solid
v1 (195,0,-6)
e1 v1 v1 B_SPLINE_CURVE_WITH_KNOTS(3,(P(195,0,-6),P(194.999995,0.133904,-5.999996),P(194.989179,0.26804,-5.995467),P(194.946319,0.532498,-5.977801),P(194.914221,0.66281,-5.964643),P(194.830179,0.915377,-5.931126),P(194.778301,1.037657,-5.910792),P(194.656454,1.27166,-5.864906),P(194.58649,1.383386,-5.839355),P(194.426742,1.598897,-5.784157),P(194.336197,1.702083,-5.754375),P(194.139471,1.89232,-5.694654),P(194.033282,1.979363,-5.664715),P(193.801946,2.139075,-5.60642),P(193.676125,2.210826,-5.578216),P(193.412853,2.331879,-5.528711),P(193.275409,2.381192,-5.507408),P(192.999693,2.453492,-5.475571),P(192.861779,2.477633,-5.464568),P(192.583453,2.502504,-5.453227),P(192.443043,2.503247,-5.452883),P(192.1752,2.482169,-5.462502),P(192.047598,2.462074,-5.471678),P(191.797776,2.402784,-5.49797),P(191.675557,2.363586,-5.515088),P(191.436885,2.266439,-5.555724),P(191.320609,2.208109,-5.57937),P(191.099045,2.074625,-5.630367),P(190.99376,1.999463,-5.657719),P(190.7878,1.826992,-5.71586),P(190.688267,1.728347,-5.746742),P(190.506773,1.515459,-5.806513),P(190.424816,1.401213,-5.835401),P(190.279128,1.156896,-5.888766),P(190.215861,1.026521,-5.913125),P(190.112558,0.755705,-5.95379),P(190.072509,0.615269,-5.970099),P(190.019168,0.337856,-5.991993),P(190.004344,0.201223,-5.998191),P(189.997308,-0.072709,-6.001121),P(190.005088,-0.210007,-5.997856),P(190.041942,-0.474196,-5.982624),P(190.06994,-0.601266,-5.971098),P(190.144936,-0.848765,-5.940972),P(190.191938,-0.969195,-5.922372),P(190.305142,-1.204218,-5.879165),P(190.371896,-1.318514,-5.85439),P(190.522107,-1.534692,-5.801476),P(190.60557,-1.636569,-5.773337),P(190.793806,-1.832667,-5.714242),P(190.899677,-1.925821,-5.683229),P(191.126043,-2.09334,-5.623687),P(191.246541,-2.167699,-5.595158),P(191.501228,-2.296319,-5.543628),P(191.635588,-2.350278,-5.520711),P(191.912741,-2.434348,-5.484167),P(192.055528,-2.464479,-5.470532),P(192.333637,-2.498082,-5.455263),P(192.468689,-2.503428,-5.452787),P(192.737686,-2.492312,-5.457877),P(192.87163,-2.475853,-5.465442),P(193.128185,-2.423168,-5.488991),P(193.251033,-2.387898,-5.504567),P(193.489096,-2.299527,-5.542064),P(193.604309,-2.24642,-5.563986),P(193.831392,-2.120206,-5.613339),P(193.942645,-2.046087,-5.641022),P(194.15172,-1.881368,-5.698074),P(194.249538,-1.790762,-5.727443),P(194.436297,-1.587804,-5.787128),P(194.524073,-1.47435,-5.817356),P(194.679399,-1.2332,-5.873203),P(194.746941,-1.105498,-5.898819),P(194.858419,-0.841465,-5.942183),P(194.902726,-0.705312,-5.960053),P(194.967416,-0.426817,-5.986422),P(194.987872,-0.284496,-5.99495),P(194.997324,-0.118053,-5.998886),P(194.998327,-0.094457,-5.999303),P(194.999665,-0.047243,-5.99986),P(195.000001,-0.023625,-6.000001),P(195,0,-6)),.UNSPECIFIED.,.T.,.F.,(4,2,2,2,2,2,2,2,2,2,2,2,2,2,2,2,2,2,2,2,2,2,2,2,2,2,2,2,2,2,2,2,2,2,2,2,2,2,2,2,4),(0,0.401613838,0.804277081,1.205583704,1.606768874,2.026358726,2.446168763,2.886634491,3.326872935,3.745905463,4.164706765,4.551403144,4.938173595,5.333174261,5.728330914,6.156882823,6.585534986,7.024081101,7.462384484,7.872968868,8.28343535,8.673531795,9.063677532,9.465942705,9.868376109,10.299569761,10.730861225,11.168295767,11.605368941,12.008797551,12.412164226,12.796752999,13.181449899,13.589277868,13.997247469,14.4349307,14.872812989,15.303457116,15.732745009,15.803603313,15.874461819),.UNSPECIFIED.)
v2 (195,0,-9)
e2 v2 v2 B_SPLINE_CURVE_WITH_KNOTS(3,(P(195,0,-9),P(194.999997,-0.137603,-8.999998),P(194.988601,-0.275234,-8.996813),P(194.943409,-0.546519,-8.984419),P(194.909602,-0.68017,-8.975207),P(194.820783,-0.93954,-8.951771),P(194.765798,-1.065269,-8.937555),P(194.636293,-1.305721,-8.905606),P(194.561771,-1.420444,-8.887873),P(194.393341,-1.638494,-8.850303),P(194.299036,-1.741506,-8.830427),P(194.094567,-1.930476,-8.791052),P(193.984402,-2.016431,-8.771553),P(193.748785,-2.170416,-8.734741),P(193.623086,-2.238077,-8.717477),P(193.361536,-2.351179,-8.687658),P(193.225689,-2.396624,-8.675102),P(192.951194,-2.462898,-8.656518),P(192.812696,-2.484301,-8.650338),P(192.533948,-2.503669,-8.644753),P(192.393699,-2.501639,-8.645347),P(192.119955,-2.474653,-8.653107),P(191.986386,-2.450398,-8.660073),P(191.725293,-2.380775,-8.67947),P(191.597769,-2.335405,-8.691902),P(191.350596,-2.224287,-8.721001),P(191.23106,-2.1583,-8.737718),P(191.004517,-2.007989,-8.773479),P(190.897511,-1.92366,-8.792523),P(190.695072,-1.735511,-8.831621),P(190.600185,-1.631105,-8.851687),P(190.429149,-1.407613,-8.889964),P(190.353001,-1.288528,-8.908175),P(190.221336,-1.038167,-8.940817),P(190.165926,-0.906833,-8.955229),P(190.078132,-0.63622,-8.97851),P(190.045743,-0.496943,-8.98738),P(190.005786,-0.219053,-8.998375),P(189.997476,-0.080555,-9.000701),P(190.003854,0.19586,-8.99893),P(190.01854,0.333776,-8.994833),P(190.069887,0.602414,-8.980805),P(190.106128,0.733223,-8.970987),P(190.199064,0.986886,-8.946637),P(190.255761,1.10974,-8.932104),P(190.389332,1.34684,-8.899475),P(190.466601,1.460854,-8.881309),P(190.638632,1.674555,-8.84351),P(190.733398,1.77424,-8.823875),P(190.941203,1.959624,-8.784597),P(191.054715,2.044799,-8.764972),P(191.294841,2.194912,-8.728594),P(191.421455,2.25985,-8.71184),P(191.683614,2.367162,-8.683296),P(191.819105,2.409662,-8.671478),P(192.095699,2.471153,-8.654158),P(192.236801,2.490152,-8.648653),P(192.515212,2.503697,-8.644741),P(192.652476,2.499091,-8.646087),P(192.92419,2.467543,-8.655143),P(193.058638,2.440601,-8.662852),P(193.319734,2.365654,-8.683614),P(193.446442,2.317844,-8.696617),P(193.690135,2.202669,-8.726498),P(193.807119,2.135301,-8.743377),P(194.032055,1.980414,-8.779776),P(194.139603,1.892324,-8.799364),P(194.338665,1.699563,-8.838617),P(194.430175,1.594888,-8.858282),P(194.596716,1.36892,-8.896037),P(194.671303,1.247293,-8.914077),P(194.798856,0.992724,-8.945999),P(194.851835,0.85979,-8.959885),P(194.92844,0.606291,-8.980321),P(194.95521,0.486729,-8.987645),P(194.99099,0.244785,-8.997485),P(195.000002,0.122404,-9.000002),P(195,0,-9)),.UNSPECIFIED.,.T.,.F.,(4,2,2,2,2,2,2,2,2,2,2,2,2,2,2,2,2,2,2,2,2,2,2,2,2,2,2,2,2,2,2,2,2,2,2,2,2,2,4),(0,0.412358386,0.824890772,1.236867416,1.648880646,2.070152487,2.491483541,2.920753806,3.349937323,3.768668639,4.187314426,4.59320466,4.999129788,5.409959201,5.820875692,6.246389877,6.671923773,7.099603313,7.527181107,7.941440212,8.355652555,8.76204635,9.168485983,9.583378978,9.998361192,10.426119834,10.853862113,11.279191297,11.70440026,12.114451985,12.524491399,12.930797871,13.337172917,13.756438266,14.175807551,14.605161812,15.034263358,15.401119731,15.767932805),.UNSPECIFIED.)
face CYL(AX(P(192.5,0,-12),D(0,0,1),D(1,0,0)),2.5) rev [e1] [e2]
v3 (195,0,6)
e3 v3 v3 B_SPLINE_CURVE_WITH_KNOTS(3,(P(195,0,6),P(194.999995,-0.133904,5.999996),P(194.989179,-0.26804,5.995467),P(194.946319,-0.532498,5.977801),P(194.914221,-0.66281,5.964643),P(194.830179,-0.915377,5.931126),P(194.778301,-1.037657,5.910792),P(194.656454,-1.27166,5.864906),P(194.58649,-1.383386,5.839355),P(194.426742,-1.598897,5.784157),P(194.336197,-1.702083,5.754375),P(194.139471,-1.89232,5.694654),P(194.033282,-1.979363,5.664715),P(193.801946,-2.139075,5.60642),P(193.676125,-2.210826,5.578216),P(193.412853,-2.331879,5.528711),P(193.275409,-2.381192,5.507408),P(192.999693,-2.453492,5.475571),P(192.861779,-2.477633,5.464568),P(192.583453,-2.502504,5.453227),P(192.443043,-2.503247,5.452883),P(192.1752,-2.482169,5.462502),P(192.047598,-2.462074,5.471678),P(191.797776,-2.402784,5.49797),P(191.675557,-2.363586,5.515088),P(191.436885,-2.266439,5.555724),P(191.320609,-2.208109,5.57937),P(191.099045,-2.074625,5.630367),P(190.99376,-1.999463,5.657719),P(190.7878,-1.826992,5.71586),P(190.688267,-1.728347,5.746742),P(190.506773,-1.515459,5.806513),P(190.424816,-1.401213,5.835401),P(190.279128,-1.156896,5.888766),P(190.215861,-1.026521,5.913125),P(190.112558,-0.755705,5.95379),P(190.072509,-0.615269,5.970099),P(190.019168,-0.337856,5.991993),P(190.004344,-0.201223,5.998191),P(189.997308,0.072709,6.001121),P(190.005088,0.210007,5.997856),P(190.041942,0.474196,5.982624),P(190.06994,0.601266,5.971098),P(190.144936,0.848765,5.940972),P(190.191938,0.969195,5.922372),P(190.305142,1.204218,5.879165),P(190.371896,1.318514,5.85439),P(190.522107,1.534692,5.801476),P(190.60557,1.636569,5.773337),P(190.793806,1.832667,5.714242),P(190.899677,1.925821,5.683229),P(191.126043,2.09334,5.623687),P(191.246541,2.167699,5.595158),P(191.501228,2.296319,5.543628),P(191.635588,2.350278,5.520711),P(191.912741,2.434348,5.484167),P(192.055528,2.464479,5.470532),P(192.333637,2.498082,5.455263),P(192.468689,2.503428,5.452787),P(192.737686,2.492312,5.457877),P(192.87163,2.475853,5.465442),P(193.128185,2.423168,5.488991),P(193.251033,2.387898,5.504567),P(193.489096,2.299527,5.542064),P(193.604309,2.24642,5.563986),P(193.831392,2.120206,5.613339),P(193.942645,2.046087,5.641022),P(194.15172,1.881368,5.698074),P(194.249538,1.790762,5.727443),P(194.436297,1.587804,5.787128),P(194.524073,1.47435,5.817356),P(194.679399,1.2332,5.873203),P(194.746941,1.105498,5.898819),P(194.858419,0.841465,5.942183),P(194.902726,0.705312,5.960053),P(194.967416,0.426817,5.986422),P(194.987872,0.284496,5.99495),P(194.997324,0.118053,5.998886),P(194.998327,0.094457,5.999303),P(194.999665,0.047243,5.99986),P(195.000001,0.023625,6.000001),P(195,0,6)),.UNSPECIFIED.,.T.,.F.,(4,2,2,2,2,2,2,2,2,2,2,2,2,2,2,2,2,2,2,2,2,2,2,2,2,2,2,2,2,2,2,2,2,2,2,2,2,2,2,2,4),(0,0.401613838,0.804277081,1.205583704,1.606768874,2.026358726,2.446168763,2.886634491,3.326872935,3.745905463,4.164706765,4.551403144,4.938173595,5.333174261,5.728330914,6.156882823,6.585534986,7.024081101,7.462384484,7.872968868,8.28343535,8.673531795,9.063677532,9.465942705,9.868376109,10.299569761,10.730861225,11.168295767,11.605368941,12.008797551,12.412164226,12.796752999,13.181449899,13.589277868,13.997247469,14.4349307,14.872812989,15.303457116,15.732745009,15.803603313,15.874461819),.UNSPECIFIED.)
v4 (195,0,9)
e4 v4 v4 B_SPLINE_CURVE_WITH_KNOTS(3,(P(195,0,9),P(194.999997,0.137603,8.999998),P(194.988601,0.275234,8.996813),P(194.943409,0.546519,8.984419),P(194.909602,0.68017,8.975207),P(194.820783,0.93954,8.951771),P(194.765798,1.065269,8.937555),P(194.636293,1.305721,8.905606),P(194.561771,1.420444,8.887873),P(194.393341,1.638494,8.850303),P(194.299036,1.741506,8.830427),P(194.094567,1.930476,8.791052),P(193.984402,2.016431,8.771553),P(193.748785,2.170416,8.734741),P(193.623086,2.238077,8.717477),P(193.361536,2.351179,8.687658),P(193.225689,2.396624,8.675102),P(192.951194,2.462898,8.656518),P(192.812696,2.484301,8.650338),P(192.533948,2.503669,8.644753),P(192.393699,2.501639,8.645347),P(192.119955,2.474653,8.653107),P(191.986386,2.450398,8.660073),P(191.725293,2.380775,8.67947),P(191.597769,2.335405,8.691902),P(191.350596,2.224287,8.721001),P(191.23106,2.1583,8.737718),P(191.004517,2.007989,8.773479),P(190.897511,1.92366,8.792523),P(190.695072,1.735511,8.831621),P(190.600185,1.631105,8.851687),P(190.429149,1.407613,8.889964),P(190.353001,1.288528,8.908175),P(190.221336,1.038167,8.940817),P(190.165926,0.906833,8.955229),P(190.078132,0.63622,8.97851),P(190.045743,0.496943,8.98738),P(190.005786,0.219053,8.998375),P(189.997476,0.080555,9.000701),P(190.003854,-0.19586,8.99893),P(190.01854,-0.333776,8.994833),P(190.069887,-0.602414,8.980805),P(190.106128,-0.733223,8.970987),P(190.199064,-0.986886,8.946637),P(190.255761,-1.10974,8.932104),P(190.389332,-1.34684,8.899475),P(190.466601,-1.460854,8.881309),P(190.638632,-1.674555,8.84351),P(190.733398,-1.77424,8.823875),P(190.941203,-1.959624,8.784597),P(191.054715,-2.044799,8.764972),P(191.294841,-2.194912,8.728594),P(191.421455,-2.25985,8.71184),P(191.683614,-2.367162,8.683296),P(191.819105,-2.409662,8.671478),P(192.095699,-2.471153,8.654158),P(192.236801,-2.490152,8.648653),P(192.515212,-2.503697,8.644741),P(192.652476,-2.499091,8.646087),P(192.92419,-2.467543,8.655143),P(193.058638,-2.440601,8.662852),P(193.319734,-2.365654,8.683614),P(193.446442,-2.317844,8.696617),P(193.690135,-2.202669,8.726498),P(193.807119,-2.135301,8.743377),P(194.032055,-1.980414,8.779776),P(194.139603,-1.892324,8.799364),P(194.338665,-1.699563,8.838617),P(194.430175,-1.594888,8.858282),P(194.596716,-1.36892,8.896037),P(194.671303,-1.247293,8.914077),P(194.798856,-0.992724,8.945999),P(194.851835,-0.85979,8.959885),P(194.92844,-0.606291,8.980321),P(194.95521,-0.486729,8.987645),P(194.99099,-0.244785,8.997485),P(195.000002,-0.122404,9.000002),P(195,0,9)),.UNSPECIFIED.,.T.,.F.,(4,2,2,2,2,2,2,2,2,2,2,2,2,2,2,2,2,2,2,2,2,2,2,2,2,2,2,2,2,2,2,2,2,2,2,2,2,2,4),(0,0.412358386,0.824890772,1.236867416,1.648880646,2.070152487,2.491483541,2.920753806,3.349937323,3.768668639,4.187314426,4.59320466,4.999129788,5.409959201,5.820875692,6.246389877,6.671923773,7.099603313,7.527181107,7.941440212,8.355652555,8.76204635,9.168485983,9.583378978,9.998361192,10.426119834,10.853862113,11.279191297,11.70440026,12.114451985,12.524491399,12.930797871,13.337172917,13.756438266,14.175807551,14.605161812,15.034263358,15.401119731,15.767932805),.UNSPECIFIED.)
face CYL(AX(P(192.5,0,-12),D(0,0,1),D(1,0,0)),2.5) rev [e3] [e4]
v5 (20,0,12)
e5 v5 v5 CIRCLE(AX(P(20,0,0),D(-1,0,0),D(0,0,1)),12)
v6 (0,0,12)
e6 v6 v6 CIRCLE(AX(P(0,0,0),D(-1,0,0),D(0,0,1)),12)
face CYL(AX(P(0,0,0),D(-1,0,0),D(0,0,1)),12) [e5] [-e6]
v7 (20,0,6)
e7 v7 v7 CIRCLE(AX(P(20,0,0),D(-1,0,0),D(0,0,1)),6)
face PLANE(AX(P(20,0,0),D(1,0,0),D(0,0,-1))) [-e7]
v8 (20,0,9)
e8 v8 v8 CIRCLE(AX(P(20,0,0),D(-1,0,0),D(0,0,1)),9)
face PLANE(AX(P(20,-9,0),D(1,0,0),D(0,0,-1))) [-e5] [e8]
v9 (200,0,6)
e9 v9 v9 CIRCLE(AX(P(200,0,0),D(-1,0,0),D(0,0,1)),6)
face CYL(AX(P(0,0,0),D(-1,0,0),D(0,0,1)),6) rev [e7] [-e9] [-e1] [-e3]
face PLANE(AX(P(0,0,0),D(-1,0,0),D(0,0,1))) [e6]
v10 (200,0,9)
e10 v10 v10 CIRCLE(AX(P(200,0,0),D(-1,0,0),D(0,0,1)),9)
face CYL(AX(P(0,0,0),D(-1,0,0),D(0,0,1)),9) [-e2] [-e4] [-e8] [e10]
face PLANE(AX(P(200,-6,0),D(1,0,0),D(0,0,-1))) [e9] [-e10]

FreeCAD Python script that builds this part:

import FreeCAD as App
import Part
import Sketcher

V = App.Vector

doc = App.newDocument("Part")
params = doc.addObject("Spreadsheet::Sheet", "Params")
for row, (alias, value) in enumerate([
    ("sketch1_width", "20 mm"),
    ("sketch1_width2", "180 mm"),
    ("sketch1_height", "12 mm"),
    ("sketch1_height2", "3 mm"),
    ("revolution_angle", "360 deg"),
    ("sketch2_diameter", "5 mm"),
], start=1):
    params.set(f"A{row}", alias)
    params.set(f"B{row}", "=" + value)
    params.setAlias(f"B{row}", alias)

body = doc.addObject("PartDesign::Body", "Body")

# Sketch on XY plane
sketch1 = body.newObject("Sketcher::SketchObject", "Sketch")
sketch1.AttachmentSupport = (doc.getObject("XY_Plane"), [""])
sketch1.MapMode = "FlatFace"
sketch1.addGeometry(Part.LineSegment(V(20, 0, 0), V(0, 0, 0)), False)
sketch1.addGeometry(Part.LineSegment(V(0, 0, 0), V(0, -12, 0)), False)
sketch1.addGeometry(Part.LineSegment(V(0, -12, 0), V(20, -12, 0)), False)
sketch1.addGeometry(Part.LineSegment(V(20, -12, 0), V(20, -9, 0)), False)
sketch1.addGeometry(Part.LineSegment(V(20, -9, 0), V(200, -9, 0)), False)
sketch1.addGeometry(Part.LineSegment(V(200, -9, 0), V(200, -6, 0)), False)
sketch1.addGeometry(Part.LineSegment(V(200, -6, 0), V(20, -6, 0)), False)
sketch1.addGeometry(Part.LineSegment(V(20, -6, 0), V(20, 0, 0)), False)
sketch1.addConstraint(Sketcher.Constraint("Coincident", 0, 2, 1, 1))
sketch1.addConstraint(Sketcher.Constraint("Coincident", 1, 2, 2, 1))
sketch1.addConstraint(Sketcher.Constraint("Coincident", 2, 2, 3, 1))
sketch1.addConstraint(Sketcher.Constraint("Coincident", 3, 2, 4, 1))
sketch1.addConstraint(Sketcher.Constraint("Coincident", 4, 2, 5, 1))
sketch1.addConstraint(Sketcher.Constraint("Coincident", 5, 2, 6, 1))
sketch1.addConstraint(Sketcher.Constraint("Coincident", 6, 2, 7, 1))
sketch1.addConstraint(Sketcher.Constraint("Coincident", 7, 2, 0, 1))
sketch1.addConstraint(Sketcher.Constraint("Horizontal", 0))
sketch1.addConstraint(Sketcher.Constraint("Vertical", 1))
sketch1.addConstraint(Sketcher.Constraint("Horizontal", 2))
sketch1.addConstraint(Sketcher.Constraint("Vertical", 3))
sketch1.addConstraint(Sketcher.Constraint("Horizontal", 4))
sketch1.addConstraint(Sketcher.Constraint("Vertical", 5))
sketch1.addConstraint(Sketcher.Constraint("Horizontal", 6))
sketch1.addConstraint(Sketcher.Constraint("Vertical", 7))
sketch1.addConstraint(Sketcher.Constraint("Coincident", 0, 2, -1, 1))
sketch1.addConstraint(Sketcher.Constraint("Vertical", 3, 2, 6, 2))
sketch1.addConstraint(Sketcher.Constraint("Equal", 3, 5))
sketch1.addConstraint(Sketcher.Constraint("DistanceX", 0, 2, 0, 1, 20.0))
sketch1.addConstraint(Sketcher.Constraint("DistanceX", 4, 1, 4, 2, 180.0))
sketch1.addConstraint(Sketcher.Constraint("DistanceY", 1, 2, 1, 1, 12.0))
sketch1.addConstraint(Sketcher.Constraint("DistanceY", 3, 1, 3, 2, 3.0))
sketch1.setExpression("Constraints[19]", "Params.sketch1_width")
sketch1.setExpression("Constraints[20]", "Params.sketch1_width2")
sketch1.setExpression("Constraints[21]", "Params.sketch1_height")
sketch1.setExpression("Constraints[22]", "Params.sketch1_height2")
revolution = body.newObject("PartDesign::Revolution", "Revolution")
revolution.Profile = sketch1
revolution.ReferenceAxis = (sketch1, ["H_Axis"])
revolution.setExpression("Angle", "Params.revolution_angle")

# Sketch on XY plane
sketch2 = body.newObject("Sketcher::SketchObject", "Sketch001")
sketch2.AttachmentSupport = (doc.getObject("XY_Plane"), [""])
sketch2.MapMode = "FlatFace"
sketch2.addGeometry(Part.Circle(V(192.5, 0, 0), V(0, 0, 1), 2.5), False)
sketch2.addConstraint(Sketcher.Constraint("PointOnObject", 0, 3, -1))
sketch2.addConstraint(Sketcher.Constraint("Diameter", 0, 5.0))
sketch2.addConstraint(Sketcher.Constraint("DistanceX", -1, 1, 0, 3, 192.5))
sketch2.setExpression("Constraints[1]", "Params.sketch2_diameter")
pocket1 = body.newObject("PartDesign::Pocket", "Pocket")
pocket1.Profile = sketch2
pocket1.Type = "ThroughAll"
pocket1.Midplane = True

doc.recompute()
